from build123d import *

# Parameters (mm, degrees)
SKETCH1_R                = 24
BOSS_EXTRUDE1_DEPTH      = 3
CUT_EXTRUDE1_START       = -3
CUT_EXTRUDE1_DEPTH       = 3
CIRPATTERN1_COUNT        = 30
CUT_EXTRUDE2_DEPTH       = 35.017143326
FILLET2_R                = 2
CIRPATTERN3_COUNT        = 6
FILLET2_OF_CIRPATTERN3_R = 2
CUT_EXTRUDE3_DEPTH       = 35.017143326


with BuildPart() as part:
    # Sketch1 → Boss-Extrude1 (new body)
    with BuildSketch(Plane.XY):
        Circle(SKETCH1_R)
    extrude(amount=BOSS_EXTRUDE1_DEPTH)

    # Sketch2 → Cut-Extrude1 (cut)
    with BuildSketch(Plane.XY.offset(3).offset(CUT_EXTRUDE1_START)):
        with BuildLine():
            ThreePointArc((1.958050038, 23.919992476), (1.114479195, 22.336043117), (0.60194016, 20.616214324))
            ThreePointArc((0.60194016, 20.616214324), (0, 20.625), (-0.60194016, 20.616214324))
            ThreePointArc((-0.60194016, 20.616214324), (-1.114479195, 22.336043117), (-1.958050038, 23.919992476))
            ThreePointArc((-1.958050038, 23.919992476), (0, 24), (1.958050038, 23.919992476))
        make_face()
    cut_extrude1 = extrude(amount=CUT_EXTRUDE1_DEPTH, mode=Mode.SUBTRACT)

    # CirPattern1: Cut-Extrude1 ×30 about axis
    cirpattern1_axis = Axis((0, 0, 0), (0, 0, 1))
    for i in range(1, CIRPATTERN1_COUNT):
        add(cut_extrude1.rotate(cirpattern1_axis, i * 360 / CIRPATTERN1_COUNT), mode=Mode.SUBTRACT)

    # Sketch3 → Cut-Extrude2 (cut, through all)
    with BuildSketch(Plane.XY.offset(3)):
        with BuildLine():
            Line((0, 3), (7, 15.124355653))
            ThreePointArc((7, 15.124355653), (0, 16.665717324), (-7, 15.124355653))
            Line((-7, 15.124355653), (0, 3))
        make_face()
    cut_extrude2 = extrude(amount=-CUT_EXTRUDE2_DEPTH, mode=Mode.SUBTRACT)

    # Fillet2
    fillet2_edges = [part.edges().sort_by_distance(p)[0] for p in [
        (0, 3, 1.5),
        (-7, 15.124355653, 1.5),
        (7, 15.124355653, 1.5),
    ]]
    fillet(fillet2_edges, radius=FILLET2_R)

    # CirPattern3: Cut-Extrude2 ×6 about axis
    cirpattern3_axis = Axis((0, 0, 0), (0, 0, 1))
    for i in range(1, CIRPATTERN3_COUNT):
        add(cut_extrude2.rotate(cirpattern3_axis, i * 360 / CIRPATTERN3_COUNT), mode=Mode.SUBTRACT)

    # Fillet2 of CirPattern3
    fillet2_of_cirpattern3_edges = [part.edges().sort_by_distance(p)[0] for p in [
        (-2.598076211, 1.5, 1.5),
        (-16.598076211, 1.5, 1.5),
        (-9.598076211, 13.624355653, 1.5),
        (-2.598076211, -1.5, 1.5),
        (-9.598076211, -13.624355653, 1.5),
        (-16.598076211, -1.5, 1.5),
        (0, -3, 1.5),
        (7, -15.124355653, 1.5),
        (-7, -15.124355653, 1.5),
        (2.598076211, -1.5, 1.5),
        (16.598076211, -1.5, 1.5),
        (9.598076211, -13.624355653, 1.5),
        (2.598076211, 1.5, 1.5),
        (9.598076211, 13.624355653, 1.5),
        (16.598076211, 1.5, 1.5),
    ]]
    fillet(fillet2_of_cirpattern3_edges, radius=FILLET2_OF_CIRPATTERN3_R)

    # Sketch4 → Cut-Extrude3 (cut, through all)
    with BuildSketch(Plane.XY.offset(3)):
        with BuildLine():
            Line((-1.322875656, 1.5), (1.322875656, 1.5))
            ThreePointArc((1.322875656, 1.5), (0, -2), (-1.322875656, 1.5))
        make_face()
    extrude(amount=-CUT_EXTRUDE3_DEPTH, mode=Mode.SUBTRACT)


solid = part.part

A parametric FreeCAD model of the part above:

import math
import FreeCAD as App
import Part
import Sketcher

V = App.Vector
Q = App.Units.Quantity


def edges_at(feature, points):
    """Names of the edges that pass closest to the given points."""
    edges = feature.Shape.Edges
    near = lambda p: min(range(len(edges)), key=lambda i: edges[i].distToShape(Part.Vertex(*p))[0])
    return sorted({f"Edge{near(p) + 1}" for p in points})

doc = App.newDocument("Part")
body = doc.addObject("PartDesign::Body", "Body")

sketch1 = doc.addObject("Sketcher::SketchObject", "Sketch")
body.addObject(sketch1)
sketch1.AttachmentSupport = (doc.XY_Plane, [""])
sketch1.MapMode = "FlatFace"
sketch1.addGeometry(Part.Circle(V(0, 0, 0), V(0, 0, 1), 24), False)
sketch1.addConstraint([
    Sketcher.Constraint("Coincident", 0, 3, -1, 1),
    Sketcher.Constraint("Diameter", 0, Q("48 mm")),
])
pad1 = doc.addObject("PartDesign::Pad", "Pad")
body.addObject(pad1)
pad1.Profile = sketch1
pad1.Length = 3

sketch2 = doc.addObject("Sketcher::SketchObject", "Sketch001")
body.addObject(sketch2)
sketch2.AttachmentSupport = (doc.XY_Plane, [""])
sketch2.MapMode = "FlatFace"
sketch2.addGeometry([
    Part.ArcOfCircle(Part.Circle(V(9.440365, 18.918496, 0), V(0, 0, 1), 9), math.radians(146.239556), math.radians(169.126846)),
    Part.ArcOfCircle(Part.Circle(V(0, 0, 0), V(0, 0, 1), 24), math.radians(85.320299), math.radians(94.679701)),
    Part.ArcOfCircle(Part.Circle(V(-9.440365, 18.918496, 0), V(0, 0, 1), 9), math.radians(10.873154), math.radians(33.760444)),
    Part.ArcOfCircle(Part.Circle(V(0, -0.000001, 0), V(0, 0, 1), 20.625001), math.radians(88.327587), math.radians(91.672413)),
], False)
sketch2.addConstraint([
    Sketcher.Constraint("Coincident", 0, 1, 1, 1),
    Sketcher.Constraint("Coincident", 1, 2, 2, 2),
    Sketcher.Constraint("Coincident", 2, 1, 3, 2),
    Sketcher.Constraint("Coincident", 3, 1, 0, 2),
    Sketcher.Constraint("Coincident", 1, 3, -1, 1),
    Sketcher.Constraint("Coincident", 3, 3, -1, 1),
    Sketcher.Constraint("Equal", 0, 2),
    Sketcher.Constraint("Symmetric", 0, 3, 2, 3, -2),
    Sketcher.Constraint("Radius", 0, Q("9 mm")),
    Sketcher.Constraint("Radius", 1, Q("24 mm")),
    Sketcher.Constraint("Radius", 3, Q("20.625001 mm")),
    Sketcher.Constraint("DistanceX", 1, 2, 0, 1, Q("3.9161 mm")),
    Sketcher.Constraint("DistanceX", 2, 1, -1, 1, Q("0.60194 mm")),
])
pocket1 = doc.addObject("PartDesign::Pocket", "Pocket")
body.addObject(pocket1)
pocket1.Profile = sketch2
pocket1.Length = 3
pocket1.Reversed = True
doc.recompute()

polarpattern = doc.addObject("PartDesign::PolarPattern", "PolarPattern")
body.addObject(polarpattern)
polarpattern.Originals = [pocket1]
polarpattern.Axis = (doc.Z_Axis, [""])
polarpattern.Angle = 360
polarpattern.Occurrences = 30
body.Tip = polarpattern

sketch3 = doc.addObject("Sketcher::SketchObject", "Sketch002")
body.addObject(sketch3)
sketch3.AttachmentSupport = (doc.XY_Plane, [""])
sketch3.MapMode = "FlatFace"
sketch3.AttachmentOffset = App.Placement(V(0, 0, 3), App.Rotation())
sketch3.addGeometry([
    Part.LineSegment(V(0, 3, 0), V(7, 15.124356, 0)),
    Part.ArcOfCircle(Part.Circle(V(0, 0, 0), V(0, 0, 1), 16.665717), math.radians(65.163902), math.radians(114.836098)),
    Part.LineSegment(V(-7, 15.124356, 0), V(0, 3, 0)),
], False)
sketch3.addConstraint([
    Sketcher.Constraint("Coincident", 0, 2, 1, 1),
    Sketcher.Constraint("Coincident", 1, 2, 2, 1),
    Sketcher.Constraint("Coincident", 2, 2, 0, 1),
    Sketcher.Constraint("Coincident", 1, 3, -1, 1),
    Sketcher.Constraint("PointOnObject", 2, 2, -2),
    Sketcher.Constraint("Horizontal", 0, 2, 1, 2),
    Sketcher.Constraint("Angle", 0, Q("60 deg")),
    Sketcher.Constraint("Distance", 0, Q("14 mm")),
    Sketcher.Constraint("DistanceY", -1, 1, 2, 2, Q("3 mm")),
])
pocket2 = doc.addObject("PartDesign::Pocket", "Pocket001")
body.addObject(pocket2)
pocket2.Profile = sketch3
pocket2.Type = "ThroughAll"
doc.recompute()

fillet = doc.addObject("PartDesign::Fillet", "Fillet")
body.addObject(fillet)
fillet.Base = (pocket2, edges_at(pocket2, [(0, 3, 1.5), (-7, 15.124, 1.5), (7, 15.124, 1.5)]))
fillet.Radius = 2
doc.recompute()

polarpattern2 = doc.addObject("PartDesign::PolarPattern", "PolarPattern001")
body.addObject(polarpattern2)
polarpattern2.Originals = [pocket2]
polarpattern2.Axis = (doc.Z_Axis, [""])
polarpattern2.Angle = 360
polarpattern2.Occurrences = 6
body.Tip = polarpattern2
doc.recompute()

fillet2 = doc.addObject("PartDesign::Fillet", "Fillet001")
body.addObject(fillet2)
fillet2.Base = (polarpattern2, edges_at(polarpattern2, [
    (-2.598, 1.5, 1.5),
    (-16.598, 1.5, 1.5),
    (-9.598, 13.624, 1.5),
    (-2.598, -1.5, 1.5),
    (-9.598, -13.624, 1.5),
    (-16.598, -1.5, 1.5),
    (0, -3, 1.5),
    (7, -15.124, 1.5),
    (-7, -15.124, 1.5),
    (2.598, -1.5, 1.5),
    (16.598, -1.5, 1.5),
    (9.598, -13.624, 1.5),
    (2.598, 1.5, 1.5),
    (9.598, 13.624, 1.5),
    (16.598, 1.5, 1.5),
]))
fillet2.Radius = 2

sketch4 = doc.addObject("Sketcher::SketchObject", "Sketch003")
body.addObject(sketch4)
sketch4.AttachmentSupport = (doc.XY_Plane, [""])
sketch4.MapMode = "FlatFace"
sketch4.AttachmentOffset = App.Placement(V(0, 0, 3), App.Rotation())
sketch4.addGeometry([
    Part.LineSegment(V(1.322876, 1.5, 0), V(-1.322876, 1.5, 0)),
    Part.ArcOfCircle(Part.Circle(V(0, 0, 0), V(0, 0, 1), 2), math.radians(131.409622), math.radians(408.590378)),
], False)
sketch4.addConstraint([
    Sketcher.Constraint("Coincident", 0, 1, 1, 2),
    Sketcher.Constraint("Coincident", 1, 1, 0, 2),
    Sketcher.Constraint("Horizontal", 0),
    Sketcher.Constraint("Coincident", 1, 3, -1, 1),
    Sketcher.Constraint("Radius", 1, Q("2 mm")),
    Sketcher.Constraint("DistanceY", -1, 1, 0, 1, Q("1.5 mm")),
])
pocket3 = doc.addObject("PartDesign::Pocket", "Pocket002")
body.addObject(pocket3)
pocket3.Profile = sketch4
pocket3.Type = "ThroughAll"

doc.recompute()
